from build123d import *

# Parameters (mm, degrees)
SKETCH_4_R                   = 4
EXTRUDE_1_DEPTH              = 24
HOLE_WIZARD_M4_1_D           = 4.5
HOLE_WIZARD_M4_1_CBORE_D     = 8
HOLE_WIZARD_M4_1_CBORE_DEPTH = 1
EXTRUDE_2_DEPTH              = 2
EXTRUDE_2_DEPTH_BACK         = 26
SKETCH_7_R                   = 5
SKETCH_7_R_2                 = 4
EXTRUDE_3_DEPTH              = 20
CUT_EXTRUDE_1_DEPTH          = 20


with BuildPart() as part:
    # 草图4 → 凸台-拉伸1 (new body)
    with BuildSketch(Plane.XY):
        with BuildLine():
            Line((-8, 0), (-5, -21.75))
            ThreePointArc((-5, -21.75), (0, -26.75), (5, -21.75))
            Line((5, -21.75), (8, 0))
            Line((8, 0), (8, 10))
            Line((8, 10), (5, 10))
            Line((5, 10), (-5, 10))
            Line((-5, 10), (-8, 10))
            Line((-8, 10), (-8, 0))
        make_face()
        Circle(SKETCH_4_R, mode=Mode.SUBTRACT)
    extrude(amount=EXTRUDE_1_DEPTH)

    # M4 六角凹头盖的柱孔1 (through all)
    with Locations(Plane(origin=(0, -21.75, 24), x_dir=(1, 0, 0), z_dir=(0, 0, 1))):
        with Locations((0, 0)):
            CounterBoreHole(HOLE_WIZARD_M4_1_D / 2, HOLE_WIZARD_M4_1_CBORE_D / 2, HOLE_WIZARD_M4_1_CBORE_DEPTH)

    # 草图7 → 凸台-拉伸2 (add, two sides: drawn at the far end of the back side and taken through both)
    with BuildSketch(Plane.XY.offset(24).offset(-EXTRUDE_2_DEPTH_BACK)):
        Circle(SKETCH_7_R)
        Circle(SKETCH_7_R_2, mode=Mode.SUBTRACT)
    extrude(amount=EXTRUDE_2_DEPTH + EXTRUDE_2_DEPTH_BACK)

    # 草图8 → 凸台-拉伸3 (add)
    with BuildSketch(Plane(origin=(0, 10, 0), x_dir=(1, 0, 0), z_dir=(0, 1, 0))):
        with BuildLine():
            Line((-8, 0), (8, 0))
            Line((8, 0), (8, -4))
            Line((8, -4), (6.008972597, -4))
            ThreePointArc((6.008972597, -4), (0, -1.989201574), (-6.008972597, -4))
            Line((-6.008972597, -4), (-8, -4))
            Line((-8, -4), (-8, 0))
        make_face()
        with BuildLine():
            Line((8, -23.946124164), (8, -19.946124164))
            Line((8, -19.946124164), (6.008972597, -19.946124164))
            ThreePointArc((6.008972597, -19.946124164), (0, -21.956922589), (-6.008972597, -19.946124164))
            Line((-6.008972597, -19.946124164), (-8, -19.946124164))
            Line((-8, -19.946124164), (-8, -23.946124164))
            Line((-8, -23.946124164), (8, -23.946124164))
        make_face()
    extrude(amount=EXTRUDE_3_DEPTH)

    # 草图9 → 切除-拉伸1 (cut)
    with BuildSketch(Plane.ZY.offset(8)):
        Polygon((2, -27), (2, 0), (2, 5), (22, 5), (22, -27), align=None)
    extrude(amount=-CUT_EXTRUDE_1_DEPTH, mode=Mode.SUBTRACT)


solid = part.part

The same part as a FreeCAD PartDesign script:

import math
import FreeCAD as App
import Part
import Sketcher
from FreeCAD import Vector

doc = App.newDocument("Part")
body = doc.addObject("PartDesign::Body", "Body")

# Sketch on XY plane
sketch1 = body.newObject("Sketcher::SketchObject", "Sketch")
sketch1.AttachmentSupport = (doc.getObject("XY_Plane"), [""])
sketch1.MapMode = "FlatFace"
sketch1.addGeometry([
    Part.LineSegment(Vector(-8, 0, 0), Vector(-5, -21.8, 0)),  # 0
    Part.ArcOfCircle(Part.Circle(Vector(0, -21.8, 0), Vector(0, 0, 1), 5), math.radians(180), math.radians(360)),  # 1
    Part.LineSegment(Vector(5, -21.8, 0), Vector(8, 0, 0)),  # 2
    Part.LineSegment(Vector(8, 0, 0), Vector(8, 10, 0)),  # 3
    Part.LineSegment(Vector(8, 10, 0), Vector(-8, 10, 0)),  # 4
    Part.LineSegment(Vector(-8, 10, 0), Vector(-8, 0, 0)),  # 5
    Part.Circle(Vector(0, 0, 0), Vector(0, 0, 1), 4),  # 6
], False)
sketch1.addConstraint([
    Sketcher.Constraint("Coincident", 0, 2, 1, 1),
    Sketcher.Constraint("Coincident", 1, 2, 2, 1),
    Sketcher.Constraint("Coincident", 2, 2, 3, 1),
    Sketcher.Constraint("Coincident", 3, 2, 4, 1),
    Sketcher.Constraint("Coincident", 4, 2, 5, 1),
    Sketcher.Constraint("Coincident", 5, 2, 0, 1),
    Sketcher.Constraint("Vertical", 3),
    Sketcher.Constraint("Horizontal", 4),
    Sketcher.Constraint("Vertical", 5),
    Sketcher.Constraint("Coincident", 6, 3, -1, 1),
    Sketcher.Constraint("Symmetric", 2, 2, 5, 2, -1, 1),
    Sketcher.Constraint("Symmetric", 0, 2, 1, 2, -2),
    Sketcher.Constraint("PointOnObject", 2, 2, -1),
    Sketcher.Constraint("Horizontal", 1, 3, 0, 2),
    Sketcher.Constraint("Diameter", 6, 8.0),
    Sketcher.Constraint("Radius", 1, 5.0),
    Sketcher.Constraint("DistanceX", 4, 2, 4, 1, 16.0),
    Sketcher.Constraint("DistanceY", 3, 1, 3, 2, 10.0),
    Sketcher.Constraint("DistanceY", 1, 3, -1, 1, 21.75),
])
pad1 = body.newObject("PartDesign::Pad", "Pad")
pad1.Profile = sketch1
pad1.Length = 24

# Sketch on XY plane
sketch2 = body.newObject("Sketcher::SketchObject", "Sketch001")
sketch2.AttachmentSupport = (doc.getObject("XY_Plane"), [""])
sketch2.MapMode = "FlatFace"
sketch2.AttachmentOffset = App.Placement(Vector(0, 0, 24), App.Rotation())
sketch2.addGeometry(Part.Circle(Vector(0, -21.8, 0), Vector(0, 0, 1), 2.2), False)
sketch2.addConstraint([
    Sketcher.Constraint("PointOnObject", 0, 3, -2),
    Sketcher.Constraint("Diameter", 0, 4.5),
    Sketcher.Constraint("DistanceY", 0, 3, -1, 1, 21.75),
])
doc.recompute()
hole = body.newObject("PartDesign::Hole", "Hole")
hole.Profile = sketch2
hole.ThreadType = "None"
hole.Diameter = 4.5
hole.DepthType = "ThroughAll"
hole.HoleCutType = "Counterbore"
hole.HoleCutDiameter = 8
hole.HoleCutDepth = 1

# Sketch on XY plane
sketch3 = body.newObject("Sketcher::SketchObject", "Sketch002")
sketch3.AttachmentSupport = (doc.getObject("XY_Plane"), [""])
sketch3.MapMode = "FlatFace"
sketch3.AttachmentOffset = App.Placement(Vector(0, 0, 24), App.Rotation())
sketch3.addGeometry([
    Part.Circle(Vector(0, 0, 0), Vector(0, 0, 1), 5),
    Part.Circle(Vector(0, 0, 0), Vector(0, 0, 1), 4),
], False)
sketch3.addConstraint([
    Sketcher.Constraint("Coincident", 0, 3, -1, 1),
    Sketcher.Constraint("Coincident", 1, 3, -1, 1),
    Sketcher.Constraint("Diameter", 0, 10.0),
    Sketcher.Constraint("Diameter", 1, 8.0),
])
pad2 = body.newObject("PartDesign::Pad", "Pad001")
pad2.Profile = sketch3
pad2.Type = "TwoLengths"
pad2.Length = 2
pad2.Length2 = 26

# Sketch on XZ plane
sketch4 = body.newObject("Sketcher::SketchObject", "Sketch003")
sketch4.AttachmentSupport = (doc.getObject("XZ_Plane"), [""])
sketch4.MapMode = "FlatFace"
sketch4.AttachmentOffset = App.Placement(Vector(0, 0, -10), App.Rotation())
sketch4.addGeometry([
    Part.LineSegment(Vector(8, 0, 0), Vector(-8, 0, 0)),  # 0
    Part.LineSegment(Vector(-8, 0, 0), Vector(-8, 4, 0)),  # 1
    Part.LineSegment(Vector(-8, 4, 0), Vector(-6, 4, 0)),  # 2
    Part.ArcOfCircle(Part.Circle(Vector(0, 12, 0), Vector(0, 0, 1), 10), math.radians(-127), math.radians(-53)),  # 3
    Part.LineSegment(Vector(6, 4, 0), Vector(8, 4, 0)),  # 4
    Part.LineSegment(Vector(8, 4, 0), Vector(8, 0, 0)),  # 5
    Part.LineSegment(Vector(8, 23.9, 0), Vector(8, 19.9, 0)),  # 6
    Part.LineSegment(Vector(8, 19.9, 0), Vector(6, 19.9, 0)),  # 7
    Part.ArcOfCircle(Part.Circle(Vector(0, 12, 0), Vector(0, 0, 1), 10), math.radians(53), math.radians(127)),  # 8
    Part.LineSegment(Vector(-6, 19.9, 0), Vector(-8, 19.9, 0)),  # 9
    Part.LineSegment(Vector(-8, 19.9, 0), Vector(-8, 23.9, 0)),  # 10
    Part.LineSegment(Vector(-8, 23.9, 0), Vector(8, 23.9, 0)),  # 11
], False)
sketch4.addConstraint([
    Sketcher.Constraint("Coincident", 0, 2, 1, 1),
    Sketcher.Constraint("Coincident", 1, 2, 2, 1),
    Sketcher.Constraint("Coincident", 2, 2, 3, 1),
    Sketcher.Constraint("Coincident", 3, 2, 4, 1),
    Sketcher.Constraint("Coincident", 4, 2, 5, 1),
    Sketcher.Constraint("Coincident", 5, 2, 0, 1),
    Sketcher.Constraint("Coincident", 6, 2, 7, 1),
    Sketcher.Constraint("Coincident", 7, 2, 8, 1),
    Sketcher.Constraint("Coincident", 8, 2, 9, 1),
    Sketcher.Constraint("Coincident", 9, 2, 10, 1),
    Sketcher.Constraint("Coincident", 10, 2, 11, 1),
    Sketcher.Constraint("Coincident", 11, 2, 6, 1),
    Sketcher.Constraint("Horizontal", 0),
    Sketcher.Constraint("Vertical", 1),
    Sketcher.Constraint("Horizontal", 2),
    Sketcher.Constraint("Horizontal", 4),
    Sketcher.Constraint("Vertical", 5),
    Sketcher.Constraint("Vertical", 6),
    Sketcher.Constraint("Horizontal", 7),
    Sketcher.Constraint("Horizontal", 9),
    Sketcher.Constraint("Vertical", 10),
    Sketcher.Constraint("Horizontal", 11),
    Sketcher.Constraint("Coincident", 8, 3, 3, 3),
    Sketcher.Constraint("Equal", 3, 8),
    Sketcher.Constraint("Symmetric", 0, 2, 5, 2, -1, 1),
    Sketcher.Constraint("Symmetric", 2, 2, 3, 2, -2),
    Sketcher.Constraint("Symmetric", 6, 2, 9, 2, -2),
    Sketcher.Constraint("Vertical", 5, 2, 6, 2),
    Sketcher.Constraint("Vertical", 3, 2, 7, 2),
    Sketcher.Constraint("Equal", 5, 6),
    Sketcher.Constraint("DistanceX", 0, 2, 0, 1, 16.0),
    Sketcher.Constraint("DistanceY", 1, 1, 1, 2, 4.0),
    Sketcher.Constraint("Radius", 3, 9.983861),
    Sketcher.Constraint("DistanceX", 2, 1, 2, 2, 1.991027),
])
pad3 = body.newObject("PartDesign::Pad", "Pad002")
pad3.Profile = sketch4
pad3.Length = 20
pad3.Reversed = True

# Sketch on YZ plane
sketch5 = body.newObject("Sketcher::SketchObject", "Sketch004")
sketch5.AttachmentSupport = (doc.getObject("YZ_Plane"), [""])
sketch5.MapMode = "FlatFace"
sketch5.AttachmentOffset = App.Placement(Vector(0, 0, -8), App.Rotation())
sketch5.addGeometry([
    Part.LineSegment(Vector(5, 2, 0), Vector(-27, 2, 0)),
    Part.LineSegment(Vector(-27, 2, 0), Vector(-27, 22, 0)),
    Part.LineSegment(Vector(-27, 22, 0), Vector(5, 22, 0)),
    Part.LineSegment(Vector(5, 22, 0), Vector(5, 2, 0)),
], False)
sketch5.addConstraint([
    Sketcher.Constraint("Coincident", 0, 2, 1, 1),
    Sketcher.Constraint("Coincident", 1, 2, 2, 1),
    Sketcher.Constraint("Coincident", 2, 2, 3, 1),
    Sketcher.Constraint("Coincident", 3, 2, 0, 1),
    Sketcher.Constraint("Horizontal", 0),
    Sketcher.Constraint("Vertical", 1),
    Sketcher.Constraint("Horizontal", 2),
    Sketcher.Constraint("Vertical", 3),
    Sketcher.Constraint("DistanceX", 0, 2, 0, 1, 32.0),
    Sketcher.Constraint("DistanceY", 1, 1, 1, 2, 20.0),
    Sketcher.Constraint("DistanceX", 0, 2, -1, 1, 27.0),
    Sketcher.Constraint("DistanceY", -1, 1, 0, 2, 2.0),
])
pocket1 = body.newObject("PartDesign::Pocket", "Pocket")
pocket1.Profile = sketch5
pocket1.Length = 20
pocket1.Reversed = True

doc.recompute()
